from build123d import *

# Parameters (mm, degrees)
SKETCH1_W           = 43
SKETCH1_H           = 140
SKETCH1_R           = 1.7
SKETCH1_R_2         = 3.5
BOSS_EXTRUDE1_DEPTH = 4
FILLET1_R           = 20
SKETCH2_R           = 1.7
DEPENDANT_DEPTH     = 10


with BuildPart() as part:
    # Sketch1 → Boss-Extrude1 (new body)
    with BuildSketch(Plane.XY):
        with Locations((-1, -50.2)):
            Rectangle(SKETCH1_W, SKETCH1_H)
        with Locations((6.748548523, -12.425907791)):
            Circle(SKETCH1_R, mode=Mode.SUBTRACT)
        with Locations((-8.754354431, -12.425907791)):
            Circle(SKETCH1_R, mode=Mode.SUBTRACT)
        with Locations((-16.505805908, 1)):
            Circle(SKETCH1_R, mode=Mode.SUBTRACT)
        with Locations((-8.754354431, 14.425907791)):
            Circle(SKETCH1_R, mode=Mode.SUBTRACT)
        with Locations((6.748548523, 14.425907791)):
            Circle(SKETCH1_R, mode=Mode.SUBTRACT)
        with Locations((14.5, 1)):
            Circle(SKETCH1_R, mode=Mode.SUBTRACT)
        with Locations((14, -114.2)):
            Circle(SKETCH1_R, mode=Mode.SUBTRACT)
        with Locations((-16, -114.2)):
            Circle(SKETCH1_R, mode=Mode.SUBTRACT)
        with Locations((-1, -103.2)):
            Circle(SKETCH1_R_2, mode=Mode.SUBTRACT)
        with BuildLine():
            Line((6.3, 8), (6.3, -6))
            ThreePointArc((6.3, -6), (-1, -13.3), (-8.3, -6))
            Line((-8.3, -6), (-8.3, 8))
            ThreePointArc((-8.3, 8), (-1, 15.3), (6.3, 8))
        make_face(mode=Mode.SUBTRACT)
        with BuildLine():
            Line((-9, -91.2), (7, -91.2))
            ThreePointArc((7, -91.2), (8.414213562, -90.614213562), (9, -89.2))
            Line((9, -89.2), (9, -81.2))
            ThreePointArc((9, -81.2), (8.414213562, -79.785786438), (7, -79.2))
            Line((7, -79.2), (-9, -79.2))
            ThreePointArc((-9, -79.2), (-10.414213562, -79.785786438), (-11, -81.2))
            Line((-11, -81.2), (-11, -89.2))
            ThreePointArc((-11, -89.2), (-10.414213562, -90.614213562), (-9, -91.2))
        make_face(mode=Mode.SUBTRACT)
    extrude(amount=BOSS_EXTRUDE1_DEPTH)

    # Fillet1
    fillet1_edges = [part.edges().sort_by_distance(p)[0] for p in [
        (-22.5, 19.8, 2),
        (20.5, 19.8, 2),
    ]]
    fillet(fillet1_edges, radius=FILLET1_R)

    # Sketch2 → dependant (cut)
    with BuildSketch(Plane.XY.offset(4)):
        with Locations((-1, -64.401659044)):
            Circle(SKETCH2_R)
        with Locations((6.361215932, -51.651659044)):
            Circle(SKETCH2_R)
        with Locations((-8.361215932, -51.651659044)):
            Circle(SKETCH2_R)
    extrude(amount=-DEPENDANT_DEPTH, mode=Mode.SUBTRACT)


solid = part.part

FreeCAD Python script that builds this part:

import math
import FreeCAD as App
import Part
import Sketcher


def edges_at(feature, points):
    """Names of the edges that pass closest to the given points."""
    edges = feature.Shape.Edges
    near = lambda p: min(range(len(edges)), key=lambda i: edges[i].distToShape(Part.Vertex(*p))[0])
    return sorted({f"Edge{near(p) + 1}" for p in points})


def add_polygon(sketch, points):
    """Adds a closed chain of lines whose ends are joined by coincident constraints."""
    first, n = sketch.GeometryCount, len(points)
    for a, b in zip(points, points[1:] + points[:1]):
        sketch.addGeometry(Part.LineSegment(App.Vector(*a, 0), App.Vector(*b, 0)), False)
    for i in range(n):
        sketch.addConstraint(Sketcher.Constraint("Coincident", first + i, 2, first + (i + 1) % n, 1))

doc = App.newDocument("Part")
body = doc.addObject("PartDesign::Body", "Body")

# Sketch on XY plane
sketch1 = doc.addObject("Sketcher::SketchObject", "Sketch")
body.addObject(sketch1)
sketch1.AttachmentSupport = (doc.XY_Plane, [""])
sketch1.MapMode = "FlatFace"
add_polygon(sketch1, [(-22.5, 19.8), (-22.5, -120.2), (20.5, -120.2), (20.5, 19.8)])  # lines 0-3
sketch1.addGeometry(Part.Circle(App.Vector(-16, -114.2, 0), App.Vector(0, 0, 1), 1.7), False)  # 4
sketch1.addGeometry(Part.Circle(App.Vector(-1, -103.2, 0), App.Vector(0, 0, 1), 3.5), False)  # 5
sketch1.addGeometry(Part.LineSegment(App.Vector(7, -91.2, 0), App.Vector(-9, -91.2, 0)), False)  # 6
sketch1.addGeometry(Part.ArcOfCircle(Part.Circle(App.Vector(-9, -89.2, 0), App.Vector(0, 0, 1), 2), math.radians(-180), math.radians(-90)), False)  # 7
sketch1.addGeometry(Part.LineSegment(App.Vector(-11, -89.2, 0), App.Vector(-11, -81.2, 0)), False)  # 8
sketch1.addGeometry(Part.ArcOfCircle(Part.Circle(App.Vector(-9, -81.2, 0), App.Vector(0, 0, 1), 2), math.radians(90), math.radians(180)), False)  # 9
sketch1.addGeometry(Part.LineSegment(App.Vector(-9, -79.2, 0), App.Vector(7, -79.2, 0)), False)  # 10
sketch1.addGeometry(Part.ArcOfCircle(Part.Circle(App.Vector(7, -81.2, 0), App.Vector(0, 0, 1), 2), math.radians(0), math.radians(90)), False)  # 11
sketch1.addGeometry(Part.LineSegment(App.Vector(9, -81.2, 0), App.Vector(9, -89.2, 0)), False)  # 12
sketch1.addGeometry(Part.ArcOfCircle(Part.Circle(App.Vector(7, -89.2, 0), App.Vector(0, 0, 1), 2), math.radians(-90), math.radians(0)), False)  # 13
sketch1.addGeometry(Part.Circle(App.Vector(14, -114.2, 0), App.Vector(0, 0, 1), 1.7), False)  # 14
sketch1.addGeometry(Part.Circle(App.Vector(-16.5, 1, 0), App.Vector(0, 0, 1), 1.7), False)  # 15
sketch1.addGeometry(Part.Circle(App.Vector(-8.8, -12.4, 0), App.Vector(0, 0, 1), 1.7), False)  # 16
sketch1.addGeometry(Part.Circle(App.Vector(-8.8, 14.4, 0), App.Vector(0, 0, 1), 1.7), False)  # 17
sketch1.addGeometry(Part.Circle(App.Vector(6.7, -12.4, 0), App.Vector(0, 0, 1), 1.7), False)  # 18
sketch1.addGeometry(Part.ArcOfCircle(Part.Circle(App.Vector(-1, 8, 0), App.Vector(0, 0, 1), 7.3), math.radians(0), math.radians(180)), False)  # 19
sketch1.addGeometry(Part.LineSegment(App.Vector(6.3, 8, 0), App.Vector(6.3, -6, 0)), False)  # 20
sketch1.addGeometry(Part.ArcOfCircle(Part.Circle(App.Vector(-1, -6, 0), App.Vector(0, 0, 1), 7.3), math.radians(180), math.radians(360)), False)  # 21
sketch1.addGeometry(Part.LineSegment(App.Vector(-8.3, -6, 0), App.Vector(-8.3, 8, 0)), False)  # 22
sketch1.addGeometry(Part.Circle(App.Vector(6.7, 14.4, 0), App.Vector(0, 0, 1), 1.7), False)  # 23
sketch1.addGeometry(Part.Circle(App.Vector(14.5, 1, 0), App.Vector(0, 0, 1), 1.7), False)  # 24
sketch1.addConstraint([
    Sketcher.Constraint("Tangent", 6, 2, 7, 2),
    Sketcher.Constraint("Tangent", 7, 1, 8, 1),
    Sketcher.Constraint("Tangent", 8, 2, 9, 2),
    Sketcher.Constraint("Tangent", 9, 1, 10, 1),
    Sketcher.Constraint("Tangent", 10, 2, 11, 2),
    Sketcher.Constraint("Tangent", 11, 1, 12, 1),
    Sketcher.Constraint("Tangent", 12, 2, 13, 2),
    Sketcher.Constraint("Tangent", 13, 1, 6, 1),
    Sketcher.Constraint("Tangent", 19, 1, 20, 1),
    Sketcher.Constraint("Tangent", 20, 2, 21, 2),
    Sketcher.Constraint("Tangent", 21, 1, 22, 1),
    Sketcher.Constraint("Tangent", 22, 2, 19, 2),
    Sketcher.Constraint("Vertical", 0),
    Sketcher.Constraint("Horizontal", 1),
    Sketcher.Constraint("Vertical", 2),
    Sketcher.Constraint("Horizontal", 3),
    Sketcher.Constraint("Horizontal", 6),
    Sketcher.Constraint("Vertical", 8),
    Sketcher.Constraint("Horizontal", 10),
    Sketcher.Constraint("Vertical", 12),
    Sketcher.Constraint("Vertical", 20),
    Sketcher.Constraint("Vertical", 22),
    Sketcher.Constraint("Equal", 7, 9),
    Sketcher.Constraint("Equal", 9, 11),
    Sketcher.Constraint("Equal", 11, 13),
    Sketcher.Constraint("Equal", 4, 14),
    Sketcher.Constraint("Equal", 14, 15),
    Sketcher.Constraint("Equal", 15, 16),
    Sketcher.Constraint("Equal", 16, 17),
    Sketcher.Constraint("Equal", 17, 18),
    Sketcher.Constraint("Equal", 18, 23),
    Sketcher.Constraint("Equal", 23, 24),
    Sketcher.Constraint("Horizontal", 4, 3, 14, 3),
    Sketcher.Constraint("Horizontal", 16, 3, 18, 3),
    Sketcher.Constraint("Horizontal", 17, 3, 23, 3),
    Sketcher.Constraint("Horizontal", 15, 3, 24, 3),
    Sketcher.Constraint("Vertical", 16, 3, 17, 3),
    Sketcher.Constraint("Vertical", 5, 3, 19, 3),
    Sketcher.Constraint("Vertical", 18, 3, 23, 3),
    Sketcher.Constraint("Diameter", 5, 7.0),
    Sketcher.Constraint("Radius", 7, 2.0),
    Sketcher.Constraint("Diameter", 4, 3.4),
    Sketcher.Constraint("Radius", 19, 7.3),
    Sketcher.Constraint("DistanceX", 1, 1, 1, 2, 43.0),
    Sketcher.Constraint("DistanceX", 6, 2, 6, 1, 16.0),
    Sketcher.Constraint("DistanceY", 0, 2, 0, 1, 140.0),
    Sketcher.Constraint("DistanceY", 8, 1, 8, 2, 8.0),
    Sketcher.Constraint("DistanceY", 20, 2, 20, 1, 14.0),
    Sketcher.Constraint("DistanceX", 4, 3, -1, 1, 16.0),
    Sketcher.Constraint("DistanceX", 5, 3, -1, 1, 1.0),
    Sketcher.Constraint("DistanceX", 7, 3, -1, 1, 9.0),
    Sketcher.Constraint("DistanceX", -1, 1, 14, 3, 14.0),
    Sketcher.Constraint("DistanceY", -1, 1, 15, 3, 1.0),
    Sketcher.Constraint("DistanceY", -1, 1, 19, 3, 8.0),
    Sketcher.Constraint("DistanceY", 4, 3, 5, 3, 11.0),
    Sketcher.Constraint("DistanceY", 5, 3, 7, 3, 14.0),
    Sketcher.Constraint("DistanceY", 0, 2, 4, 3, 6.0),
    Sketcher.Constraint("DistanceX", 24, 3, 2, 2, 6.0),
    Sketcher.Constraint("DistanceY", 4, 3, -1, 1, 114.2),
    Sketcher.Constraint("DistanceX", -1, 1, 24, 3, 14.5),
    Sketcher.Constraint("DistanceX", -1, 1, 18, 3, 6.748549),
    Sketcher.Constraint("DistanceX", 15, 3, 16, 3, 7.751451),
    Sketcher.Constraint("DistanceX", 15, 3, -1, 1, 16.505806),
    Sketcher.Constraint("DistanceY", 16, 3, -1, 1, 12.425908),
    Sketcher.Constraint("DistanceY", -1, 1, 17, 3, 14.425908),
])
pad1 = doc.addObject("PartDesign::Pad", "Pad")
body.addObject(pad1)
pad1.Profile = sketch1
pad1.Length = 4
doc.recompute()

fillet = doc.addObject("PartDesign::Fillet", "Fillet")
body.addObject(fillet)
fillet.Base = (pad1, edges_at(pad1, [(-22.5, 19.8, 2), (20.5, 19.8, 2)]))
fillet.Radius = 20

# Sketch on XY plane
sketch2 = doc.addObject("Sketcher::SketchObject", "Sketch001")
body.addObject(sketch2)
sketch2.AttachmentSupport = (doc.XY_Plane, [""])
sketch2.MapMode = "FlatFace"
sketch2.AttachmentOffset = App.Placement(App.Vector(0, 0, 4), App.Rotation())
sketch2.addGeometry([
    Part.Circle(App.Vector(-1, -64.4, 0), App.Vector(0, 0, 1), 1.7),
    Part.Circle(App.Vector(6.4, -51.7, 0), App.Vector(0, 0, 1), 1.7),
    Part.Circle(App.Vector(-8.4, -51.7, 0), App.Vector(0, 0, 1), 1.7),
], False)
sketch2.addConstraint([
    Sketcher.Constraint("Equal", 0, 1),
    Sketcher.Constraint("Equal", 1, 2),
    Sketcher.Constraint("Horizontal", 1, 3, 2, 3),
    Sketcher.Constraint("Diameter", 0, 3.4),
    Sketcher.Constraint("DistanceX", 0, 3, -1, 1, 1.0),
    Sketcher.Constraint("DistanceY", 0, 3, 1, 3, 12.75),
    Sketcher.Constraint("DistanceY", 0, 3, -1, 1, 64.401659),
    Sketcher.Constraint("DistanceX", 2, 3, 1, 3, 14.722432),
    Sketcher.Constraint("DistanceX", -1, 1, 1, 3, 6.361216),
])
pocket1 = doc.addObject("PartDesign::Pocket", "Pocket")
body.addObject(pocket1)
pocket1.Profile = sketch2
pocket1.Length = 10

doc.recompute()
